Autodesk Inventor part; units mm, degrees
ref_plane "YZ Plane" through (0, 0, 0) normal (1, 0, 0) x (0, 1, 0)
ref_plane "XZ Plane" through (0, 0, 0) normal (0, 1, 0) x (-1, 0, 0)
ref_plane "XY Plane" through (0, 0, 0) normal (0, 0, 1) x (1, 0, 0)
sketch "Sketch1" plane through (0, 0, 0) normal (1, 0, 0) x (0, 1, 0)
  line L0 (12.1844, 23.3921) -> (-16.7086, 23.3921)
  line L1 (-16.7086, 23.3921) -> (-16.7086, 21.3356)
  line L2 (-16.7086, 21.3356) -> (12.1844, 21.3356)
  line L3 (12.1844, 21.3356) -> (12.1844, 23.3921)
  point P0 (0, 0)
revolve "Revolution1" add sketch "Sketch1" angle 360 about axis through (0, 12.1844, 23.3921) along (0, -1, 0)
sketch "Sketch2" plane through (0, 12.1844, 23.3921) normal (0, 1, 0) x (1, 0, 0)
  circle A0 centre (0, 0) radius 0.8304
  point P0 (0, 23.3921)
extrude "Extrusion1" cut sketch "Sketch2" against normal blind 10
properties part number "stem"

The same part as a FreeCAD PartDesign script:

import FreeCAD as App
import Part
import Sketcher

V = App.Vector


def add_polygon(sketch, points):
    """Adds a closed chain of lines whose ends are joined by coincident constraints."""
    first, n = sketch.GeometryCount, len(points)
    for a, b in zip(points, points[1:] + points[:1]):
        sketch.addGeometry(Part.LineSegment(App.Vector(*a, 0), App.Vector(*b, 0)), False)
    for i in range(n):
        sketch.addConstraint(Sketcher.Constraint("Coincident", first + i, 2, first + (i + 1) % n, 1))

doc = App.newDocument("Part")
body = doc.addObject("PartDesign::Body", "Body")

sketch1 = body.newObject("Sketcher::SketchObject", "Sketch")
sketch1.AttachmentSupport = (doc.getObject("YZ_Plane"), [""])
sketch1.MapMode = "FlatFace"
add_polygon(sketch1, [(12.2, 21.3), (12.2, 23.4), (-16.7, 23.4), (-16.7, 21.3)])
sketch1.addGeometry(Part.LineSegment(V(12.2, 23.4, 0), V(-16.7, 23.4, 0)), True)
sketch1.addConstraint(Sketcher.Constraint("Vertical", 0))
sketch1.addConstraint(Sketcher.Constraint("Horizontal", 1))
sketch1.addConstraint(Sketcher.Constraint("Vertical", 2))
sketch1.addConstraint(Sketcher.Constraint("Horizontal", 3))
sketch1.addConstraint(Sketcher.Constraint("Horizontal", 4))
sketch1.addConstraint(Sketcher.Constraint("Coincident", 4, 1, 0, 2))
sketch1.addConstraint(Sketcher.Constraint("Vertical", 2, 2, 4, 2))
sketch1.addConstraint(Sketcher.Constraint("DistanceX", 1, 2, 1, 1, 28.893))
sketch1.addConstraint(Sketcher.Constraint("DistanceY", 0, 1, 0, 2, 2.0565))
sketch1.addConstraint(Sketcher.Constraint("DistanceY", -1, 1, 0, 2, 23.392))
sketch1.addConstraint(Sketcher.Constraint("DistanceX", -1, 1, 0, 2, 12.1844))
revolution = body.newObject("PartDesign::Revolution", "Revolution")
revolution.Profile = sketch1
revolution.ReferenceAxis = (sketch1, ["Axis0"])
revolution.Angle = 360

sketch2 = body.newObject("Sketcher::SketchObject", "Sketch001")
sketch2.AttachmentSupport = (doc.getObject("XZ_Plane"), [""])
sketch2.MapMode = "FlatFace"
sketch2.AttachmentOffset = App.Placement(V(0, 0, -12.1844), App.Rotation())
sketch2.addGeometry(Part.Circle(V(0, 23.4, 0), V(0, 0, 1), 0.8), False)
sketch2.addConstraint(Sketcher.Constraint("PointOnObject", 0, 3, -2))
sketch2.addConstraint(Sketcher.Constraint("Diameter", 0, 1.6608))
sketch2.addConstraint(Sketcher.Constraint("DistanceY", -1, 1, 0, 3, 23.392))
pocket1 = body.newObject("PartDesign::Pocket", "Pocket")
pocket1.Profile = sketch2
pocket1.Length = 10
pocket1.Reversed = True

doc.recompute()
